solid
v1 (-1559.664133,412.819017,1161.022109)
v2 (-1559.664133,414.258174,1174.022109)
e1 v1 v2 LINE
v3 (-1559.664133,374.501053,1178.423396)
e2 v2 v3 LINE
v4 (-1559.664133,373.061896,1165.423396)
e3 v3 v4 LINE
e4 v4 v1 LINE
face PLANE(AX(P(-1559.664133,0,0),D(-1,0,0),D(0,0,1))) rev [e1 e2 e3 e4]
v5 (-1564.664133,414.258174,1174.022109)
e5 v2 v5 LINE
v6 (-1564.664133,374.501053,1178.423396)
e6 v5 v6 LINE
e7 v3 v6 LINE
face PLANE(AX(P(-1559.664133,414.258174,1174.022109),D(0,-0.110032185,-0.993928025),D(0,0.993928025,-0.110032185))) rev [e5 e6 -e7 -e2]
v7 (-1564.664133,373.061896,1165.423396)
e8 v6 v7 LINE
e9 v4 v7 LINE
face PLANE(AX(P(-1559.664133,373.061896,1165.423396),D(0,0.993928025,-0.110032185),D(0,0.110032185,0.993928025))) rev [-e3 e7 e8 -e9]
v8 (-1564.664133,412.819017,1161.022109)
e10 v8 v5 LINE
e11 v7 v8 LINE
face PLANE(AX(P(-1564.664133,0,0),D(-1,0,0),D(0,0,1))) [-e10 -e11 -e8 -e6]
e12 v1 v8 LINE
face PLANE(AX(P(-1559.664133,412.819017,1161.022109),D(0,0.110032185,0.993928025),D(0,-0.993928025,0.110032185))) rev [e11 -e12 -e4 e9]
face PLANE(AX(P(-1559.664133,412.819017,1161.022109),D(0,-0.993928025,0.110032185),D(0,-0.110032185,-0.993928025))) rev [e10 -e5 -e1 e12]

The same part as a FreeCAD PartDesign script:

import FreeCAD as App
import Part
import Sketcher

V = App.Vector


def add_polygon(sketch, points):
    """Adds a closed chain of lines whose ends are joined by coincident constraints."""
    first, n = sketch.GeometryCount, len(points)
    for a, b in zip(points, points[1:] + points[:1]):
        sketch.addGeometry(Part.LineSegment(App.Vector(*a, 0), App.Vector(*b, 0)), False)
    for i in range(n):
        sketch.addConstraint(Sketcher.Constraint("Coincident", first + i, 2, first + (i + 1) % n, 1))

doc = App.newDocument("Part")
body = doc.addObject("PartDesign::Body", "Body")

# Sketch on YZ plane
sketch1 = body.newObject("Sketcher::SketchObject", "Sketch")
sketch1.AttachmentSupport = (doc.getObject("YZ_Plane"), [""])
sketch1.MapMode = "FlatFace"
sketch1.AttachmentOffset = App.Placement(V(0, 0, -1564.664133), App.Rotation())
add_polygon(sketch1, [(413, 1161), (414, 1174), (375, 1178), (373, 1165)])  # lines 0-3
sketch1.addConstraint(Sketcher.Constraint("Perpendicular", 0, 1))
sketch1.addConstraint(Sketcher.Constraint("Perpendicular", 1, 2))
sketch1.addConstraint(Sketcher.Constraint("Perpendicular", 2, 3))
sketch1.addConstraint(Sketcher.Constraint("Distance", 1, 40.0))
sketch1.addConstraint(Sketcher.Constraint("DistanceY", 2, 2, 1, 2, 13.0))
sketch1.addConstraint(Sketcher.Constraint("DistanceY", -1, 1, 0, 2, 1174.022109))
sketch1.addConstraint(Sketcher.Constraint("DistanceX", 1, 2, 0, 2, 39.757121))
sketch1.addConstraint(Sketcher.Constraint("DistanceX", -1, 1, 0, 2, 414.258174))
pad1 = body.newObject("PartDesign::Pad", "Pad")
pad1.Profile = sketch1
pad1.Length = 5

doc.recompute()
